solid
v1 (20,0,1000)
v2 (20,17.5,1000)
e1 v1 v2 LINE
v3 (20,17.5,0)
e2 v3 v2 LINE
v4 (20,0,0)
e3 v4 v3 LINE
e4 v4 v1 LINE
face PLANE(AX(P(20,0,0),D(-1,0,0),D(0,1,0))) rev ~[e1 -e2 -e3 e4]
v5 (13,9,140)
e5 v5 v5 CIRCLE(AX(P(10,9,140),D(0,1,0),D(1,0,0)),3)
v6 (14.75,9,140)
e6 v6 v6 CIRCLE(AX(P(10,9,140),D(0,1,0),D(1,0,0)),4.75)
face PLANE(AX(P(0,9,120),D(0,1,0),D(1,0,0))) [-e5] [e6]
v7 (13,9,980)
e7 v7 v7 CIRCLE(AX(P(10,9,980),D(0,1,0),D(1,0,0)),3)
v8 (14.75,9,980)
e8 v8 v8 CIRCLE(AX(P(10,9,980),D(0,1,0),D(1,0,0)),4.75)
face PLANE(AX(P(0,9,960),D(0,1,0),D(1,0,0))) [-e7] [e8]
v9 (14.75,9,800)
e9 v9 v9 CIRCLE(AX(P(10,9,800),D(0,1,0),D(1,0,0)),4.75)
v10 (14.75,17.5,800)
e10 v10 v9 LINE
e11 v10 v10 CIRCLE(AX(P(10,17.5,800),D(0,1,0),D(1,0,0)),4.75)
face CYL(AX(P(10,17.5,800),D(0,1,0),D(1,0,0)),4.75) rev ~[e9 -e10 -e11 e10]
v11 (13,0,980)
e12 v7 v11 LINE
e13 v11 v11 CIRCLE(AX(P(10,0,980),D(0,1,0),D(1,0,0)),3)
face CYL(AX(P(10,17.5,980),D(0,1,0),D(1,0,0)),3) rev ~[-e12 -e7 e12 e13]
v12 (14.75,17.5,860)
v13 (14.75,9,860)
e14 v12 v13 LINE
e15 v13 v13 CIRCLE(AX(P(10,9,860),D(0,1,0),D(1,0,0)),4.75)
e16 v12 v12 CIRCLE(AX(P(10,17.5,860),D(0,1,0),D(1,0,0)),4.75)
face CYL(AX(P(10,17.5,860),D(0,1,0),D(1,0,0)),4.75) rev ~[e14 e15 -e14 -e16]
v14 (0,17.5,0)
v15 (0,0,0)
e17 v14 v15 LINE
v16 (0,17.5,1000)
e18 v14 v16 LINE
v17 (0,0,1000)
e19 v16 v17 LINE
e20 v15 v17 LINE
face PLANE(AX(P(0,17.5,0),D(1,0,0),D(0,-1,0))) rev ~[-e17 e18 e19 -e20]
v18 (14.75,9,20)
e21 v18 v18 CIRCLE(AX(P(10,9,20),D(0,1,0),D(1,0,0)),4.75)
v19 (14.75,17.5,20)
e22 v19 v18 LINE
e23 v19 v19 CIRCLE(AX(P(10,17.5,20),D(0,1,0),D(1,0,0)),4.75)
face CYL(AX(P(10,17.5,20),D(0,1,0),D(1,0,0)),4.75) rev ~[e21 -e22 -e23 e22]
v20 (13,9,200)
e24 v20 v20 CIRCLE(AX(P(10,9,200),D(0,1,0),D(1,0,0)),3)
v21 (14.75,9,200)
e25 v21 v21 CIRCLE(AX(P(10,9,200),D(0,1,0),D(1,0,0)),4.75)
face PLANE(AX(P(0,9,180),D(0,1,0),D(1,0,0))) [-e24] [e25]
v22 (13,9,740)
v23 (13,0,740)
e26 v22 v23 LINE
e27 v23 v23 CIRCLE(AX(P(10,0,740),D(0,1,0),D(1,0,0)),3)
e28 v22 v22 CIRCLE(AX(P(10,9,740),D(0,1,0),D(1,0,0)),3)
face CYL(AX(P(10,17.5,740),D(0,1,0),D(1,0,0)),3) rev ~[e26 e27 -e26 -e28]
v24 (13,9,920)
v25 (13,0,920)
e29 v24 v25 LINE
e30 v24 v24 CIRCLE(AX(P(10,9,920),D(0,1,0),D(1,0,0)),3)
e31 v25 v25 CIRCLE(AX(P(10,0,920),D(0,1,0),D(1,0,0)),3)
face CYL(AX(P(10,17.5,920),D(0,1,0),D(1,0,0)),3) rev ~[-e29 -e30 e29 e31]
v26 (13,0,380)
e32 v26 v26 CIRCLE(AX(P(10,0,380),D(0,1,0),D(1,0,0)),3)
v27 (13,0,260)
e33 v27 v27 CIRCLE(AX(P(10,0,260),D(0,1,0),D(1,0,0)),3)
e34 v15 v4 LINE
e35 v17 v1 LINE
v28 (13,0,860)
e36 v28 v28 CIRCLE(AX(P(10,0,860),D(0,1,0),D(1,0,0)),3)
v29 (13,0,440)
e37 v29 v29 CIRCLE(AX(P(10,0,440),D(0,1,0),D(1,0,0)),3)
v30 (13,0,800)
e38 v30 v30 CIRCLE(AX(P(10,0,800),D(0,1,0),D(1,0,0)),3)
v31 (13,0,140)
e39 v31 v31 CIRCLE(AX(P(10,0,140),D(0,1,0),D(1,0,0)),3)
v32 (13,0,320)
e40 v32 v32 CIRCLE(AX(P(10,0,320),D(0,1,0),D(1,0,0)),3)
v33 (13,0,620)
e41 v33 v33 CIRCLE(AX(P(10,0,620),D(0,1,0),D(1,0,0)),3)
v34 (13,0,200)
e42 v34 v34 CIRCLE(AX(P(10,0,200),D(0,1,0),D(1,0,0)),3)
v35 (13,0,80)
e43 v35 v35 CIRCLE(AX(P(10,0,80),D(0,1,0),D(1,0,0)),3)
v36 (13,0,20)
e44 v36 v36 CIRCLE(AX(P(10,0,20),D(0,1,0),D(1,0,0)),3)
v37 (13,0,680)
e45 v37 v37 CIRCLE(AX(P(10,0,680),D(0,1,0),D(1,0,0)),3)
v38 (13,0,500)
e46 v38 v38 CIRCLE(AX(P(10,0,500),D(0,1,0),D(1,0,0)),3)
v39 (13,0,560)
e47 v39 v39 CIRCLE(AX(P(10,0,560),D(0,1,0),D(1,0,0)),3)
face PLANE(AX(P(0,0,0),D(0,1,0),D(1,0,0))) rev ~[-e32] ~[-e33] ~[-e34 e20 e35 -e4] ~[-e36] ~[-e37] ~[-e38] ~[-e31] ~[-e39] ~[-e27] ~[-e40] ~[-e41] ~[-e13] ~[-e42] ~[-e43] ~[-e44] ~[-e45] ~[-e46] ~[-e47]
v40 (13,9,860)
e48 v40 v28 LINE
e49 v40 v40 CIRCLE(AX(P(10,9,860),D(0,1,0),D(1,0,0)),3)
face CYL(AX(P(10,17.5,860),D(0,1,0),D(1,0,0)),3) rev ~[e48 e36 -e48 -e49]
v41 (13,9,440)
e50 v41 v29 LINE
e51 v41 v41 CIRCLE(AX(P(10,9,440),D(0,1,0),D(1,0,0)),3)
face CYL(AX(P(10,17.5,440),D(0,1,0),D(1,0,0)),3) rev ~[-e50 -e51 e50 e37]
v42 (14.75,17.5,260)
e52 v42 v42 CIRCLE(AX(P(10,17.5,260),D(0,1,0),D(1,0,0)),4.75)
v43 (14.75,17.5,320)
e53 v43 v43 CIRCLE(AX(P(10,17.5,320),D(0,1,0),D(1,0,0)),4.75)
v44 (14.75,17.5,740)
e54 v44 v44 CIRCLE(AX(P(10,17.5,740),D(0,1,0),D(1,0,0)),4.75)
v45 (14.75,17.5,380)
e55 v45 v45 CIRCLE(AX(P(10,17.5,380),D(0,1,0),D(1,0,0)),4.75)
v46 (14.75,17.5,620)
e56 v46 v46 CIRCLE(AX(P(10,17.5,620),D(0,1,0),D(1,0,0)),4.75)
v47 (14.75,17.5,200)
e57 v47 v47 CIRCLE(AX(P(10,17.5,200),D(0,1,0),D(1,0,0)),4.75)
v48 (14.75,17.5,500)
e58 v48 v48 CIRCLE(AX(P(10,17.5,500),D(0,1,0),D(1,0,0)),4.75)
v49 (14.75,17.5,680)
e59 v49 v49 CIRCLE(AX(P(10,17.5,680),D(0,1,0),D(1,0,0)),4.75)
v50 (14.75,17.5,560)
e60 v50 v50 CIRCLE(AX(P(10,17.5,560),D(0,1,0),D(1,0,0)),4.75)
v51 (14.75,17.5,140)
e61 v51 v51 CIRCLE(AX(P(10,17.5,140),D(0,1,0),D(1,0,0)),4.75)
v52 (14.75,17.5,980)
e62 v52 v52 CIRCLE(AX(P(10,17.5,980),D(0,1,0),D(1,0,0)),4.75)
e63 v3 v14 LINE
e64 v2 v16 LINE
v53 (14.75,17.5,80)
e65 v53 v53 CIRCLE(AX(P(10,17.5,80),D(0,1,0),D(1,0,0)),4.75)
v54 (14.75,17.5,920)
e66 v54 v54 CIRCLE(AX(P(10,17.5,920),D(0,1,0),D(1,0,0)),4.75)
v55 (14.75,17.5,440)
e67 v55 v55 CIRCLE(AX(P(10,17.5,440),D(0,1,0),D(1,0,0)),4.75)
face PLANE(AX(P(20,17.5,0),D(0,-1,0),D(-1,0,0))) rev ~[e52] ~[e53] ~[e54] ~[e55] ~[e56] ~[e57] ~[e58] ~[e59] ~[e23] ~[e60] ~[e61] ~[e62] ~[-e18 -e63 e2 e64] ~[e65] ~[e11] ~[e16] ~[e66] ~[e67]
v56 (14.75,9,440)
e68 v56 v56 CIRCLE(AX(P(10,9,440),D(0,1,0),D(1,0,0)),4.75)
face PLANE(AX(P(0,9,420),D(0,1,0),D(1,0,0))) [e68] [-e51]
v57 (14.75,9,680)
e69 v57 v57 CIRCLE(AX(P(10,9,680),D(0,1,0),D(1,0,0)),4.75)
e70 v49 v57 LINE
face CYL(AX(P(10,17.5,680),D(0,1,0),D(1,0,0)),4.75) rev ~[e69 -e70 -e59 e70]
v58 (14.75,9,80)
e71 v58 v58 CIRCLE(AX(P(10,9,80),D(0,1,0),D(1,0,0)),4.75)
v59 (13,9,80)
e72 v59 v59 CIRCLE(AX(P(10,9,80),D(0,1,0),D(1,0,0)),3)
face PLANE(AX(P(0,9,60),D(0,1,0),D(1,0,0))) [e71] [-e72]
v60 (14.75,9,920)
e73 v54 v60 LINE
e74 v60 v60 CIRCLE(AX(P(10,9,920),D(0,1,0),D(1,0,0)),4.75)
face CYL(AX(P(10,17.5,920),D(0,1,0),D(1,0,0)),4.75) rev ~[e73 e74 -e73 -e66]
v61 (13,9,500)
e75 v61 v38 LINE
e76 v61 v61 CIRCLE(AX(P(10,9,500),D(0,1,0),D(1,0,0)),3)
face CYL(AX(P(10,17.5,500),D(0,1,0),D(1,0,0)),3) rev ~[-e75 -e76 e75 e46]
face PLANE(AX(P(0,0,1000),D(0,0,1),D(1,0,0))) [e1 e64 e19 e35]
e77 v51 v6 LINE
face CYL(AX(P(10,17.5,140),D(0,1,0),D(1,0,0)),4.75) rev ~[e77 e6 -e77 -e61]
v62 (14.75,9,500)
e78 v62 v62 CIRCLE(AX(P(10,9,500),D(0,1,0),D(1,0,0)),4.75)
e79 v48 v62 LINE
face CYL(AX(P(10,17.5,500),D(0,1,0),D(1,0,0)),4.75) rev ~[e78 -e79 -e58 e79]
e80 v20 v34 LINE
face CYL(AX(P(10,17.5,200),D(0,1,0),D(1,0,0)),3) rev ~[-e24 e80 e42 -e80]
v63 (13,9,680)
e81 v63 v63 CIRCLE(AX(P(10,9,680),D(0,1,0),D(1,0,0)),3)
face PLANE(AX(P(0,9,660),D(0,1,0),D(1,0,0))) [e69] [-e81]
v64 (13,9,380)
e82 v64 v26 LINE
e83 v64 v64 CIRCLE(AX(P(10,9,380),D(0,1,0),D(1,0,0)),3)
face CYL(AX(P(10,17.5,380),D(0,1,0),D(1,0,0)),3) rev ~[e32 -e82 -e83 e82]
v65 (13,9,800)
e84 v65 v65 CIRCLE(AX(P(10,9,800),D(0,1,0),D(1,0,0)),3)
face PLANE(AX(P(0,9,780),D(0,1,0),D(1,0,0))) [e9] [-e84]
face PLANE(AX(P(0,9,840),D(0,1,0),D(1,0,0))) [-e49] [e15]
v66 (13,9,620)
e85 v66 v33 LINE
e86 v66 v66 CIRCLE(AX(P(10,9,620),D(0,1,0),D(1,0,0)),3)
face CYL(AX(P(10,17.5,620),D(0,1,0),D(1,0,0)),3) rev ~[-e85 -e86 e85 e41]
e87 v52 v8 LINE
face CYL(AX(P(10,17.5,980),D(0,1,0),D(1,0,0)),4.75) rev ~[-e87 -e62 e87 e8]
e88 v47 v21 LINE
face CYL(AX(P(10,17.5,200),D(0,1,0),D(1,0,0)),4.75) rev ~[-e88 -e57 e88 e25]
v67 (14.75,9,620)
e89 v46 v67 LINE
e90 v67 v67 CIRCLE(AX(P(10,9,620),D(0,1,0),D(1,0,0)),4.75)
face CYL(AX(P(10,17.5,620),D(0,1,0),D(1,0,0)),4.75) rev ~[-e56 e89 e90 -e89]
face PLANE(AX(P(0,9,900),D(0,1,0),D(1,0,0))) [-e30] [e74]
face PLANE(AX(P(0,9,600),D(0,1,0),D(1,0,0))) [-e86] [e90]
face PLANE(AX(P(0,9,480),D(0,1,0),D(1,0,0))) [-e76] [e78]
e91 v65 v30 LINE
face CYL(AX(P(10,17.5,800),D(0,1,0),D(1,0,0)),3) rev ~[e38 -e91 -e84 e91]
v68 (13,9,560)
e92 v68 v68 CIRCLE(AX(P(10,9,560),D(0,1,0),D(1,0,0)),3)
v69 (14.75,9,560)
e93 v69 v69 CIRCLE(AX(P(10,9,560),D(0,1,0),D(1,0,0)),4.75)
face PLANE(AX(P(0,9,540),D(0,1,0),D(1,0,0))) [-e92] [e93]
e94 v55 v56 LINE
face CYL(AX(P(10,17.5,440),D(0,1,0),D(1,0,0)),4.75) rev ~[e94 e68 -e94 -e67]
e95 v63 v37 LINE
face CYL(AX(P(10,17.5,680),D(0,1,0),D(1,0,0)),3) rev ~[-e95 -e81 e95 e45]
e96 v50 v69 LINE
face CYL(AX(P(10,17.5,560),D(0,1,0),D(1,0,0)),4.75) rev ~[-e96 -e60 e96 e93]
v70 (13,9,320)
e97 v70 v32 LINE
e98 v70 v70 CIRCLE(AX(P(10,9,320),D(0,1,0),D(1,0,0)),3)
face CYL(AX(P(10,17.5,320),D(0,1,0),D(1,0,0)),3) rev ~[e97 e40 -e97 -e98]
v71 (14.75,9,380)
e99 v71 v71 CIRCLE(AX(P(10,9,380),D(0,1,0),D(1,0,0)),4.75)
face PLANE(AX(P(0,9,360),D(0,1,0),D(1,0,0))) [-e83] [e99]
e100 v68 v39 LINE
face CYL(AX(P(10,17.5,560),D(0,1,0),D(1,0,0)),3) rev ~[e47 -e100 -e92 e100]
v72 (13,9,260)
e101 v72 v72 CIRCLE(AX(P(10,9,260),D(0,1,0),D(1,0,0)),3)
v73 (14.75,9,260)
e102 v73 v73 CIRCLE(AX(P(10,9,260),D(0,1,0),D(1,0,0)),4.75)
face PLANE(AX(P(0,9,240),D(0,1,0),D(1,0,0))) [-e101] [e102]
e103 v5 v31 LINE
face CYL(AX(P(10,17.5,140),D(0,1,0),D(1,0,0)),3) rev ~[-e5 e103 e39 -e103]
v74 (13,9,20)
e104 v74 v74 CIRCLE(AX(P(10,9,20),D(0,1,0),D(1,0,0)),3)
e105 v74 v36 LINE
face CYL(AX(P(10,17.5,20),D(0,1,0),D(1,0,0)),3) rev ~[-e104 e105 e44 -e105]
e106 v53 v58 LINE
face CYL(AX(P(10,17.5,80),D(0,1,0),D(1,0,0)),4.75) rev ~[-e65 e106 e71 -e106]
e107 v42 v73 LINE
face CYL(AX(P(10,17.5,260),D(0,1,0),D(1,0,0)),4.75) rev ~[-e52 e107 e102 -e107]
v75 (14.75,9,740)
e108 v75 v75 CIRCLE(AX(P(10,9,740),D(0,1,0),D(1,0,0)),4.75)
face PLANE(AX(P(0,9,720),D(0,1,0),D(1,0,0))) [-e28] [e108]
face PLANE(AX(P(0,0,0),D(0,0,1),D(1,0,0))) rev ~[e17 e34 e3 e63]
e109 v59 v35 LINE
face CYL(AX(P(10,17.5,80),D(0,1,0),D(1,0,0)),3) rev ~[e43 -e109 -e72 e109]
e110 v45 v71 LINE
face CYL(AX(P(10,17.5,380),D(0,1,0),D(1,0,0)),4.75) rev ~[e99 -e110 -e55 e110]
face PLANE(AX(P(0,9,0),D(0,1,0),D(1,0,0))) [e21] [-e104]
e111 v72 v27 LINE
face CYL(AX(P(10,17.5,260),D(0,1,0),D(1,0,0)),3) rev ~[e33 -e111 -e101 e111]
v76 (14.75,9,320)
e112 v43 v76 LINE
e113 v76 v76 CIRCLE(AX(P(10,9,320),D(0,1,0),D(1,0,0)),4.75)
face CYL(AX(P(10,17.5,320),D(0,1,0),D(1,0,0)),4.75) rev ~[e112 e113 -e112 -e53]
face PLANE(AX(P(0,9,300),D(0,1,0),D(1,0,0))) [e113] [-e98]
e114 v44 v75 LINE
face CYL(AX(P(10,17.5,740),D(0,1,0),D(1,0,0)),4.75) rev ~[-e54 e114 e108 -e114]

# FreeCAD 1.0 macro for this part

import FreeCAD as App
import Part
import Sketcher

doc = App.newDocument("Part")
body = doc.addObject("PartDesign::Body", "Body")

# Sketch on XY plane
sketch1 = body.newObject("Sketcher::SketchObject", "Sketch")
sketch1.AttachmentSupport = (doc.getObject("XY_Plane"), [""])
sketch1.MapMode = "FlatFace"
sketch1.addGeometry([
    Part.LineSegment(App.Vector(0, 18, 0), App.Vector(0, 0, 0)),
    Part.LineSegment(App.Vector(0, 0, 0), App.Vector(20, 0, 0)),
    Part.LineSegment(App.Vector(20, 0, 0), App.Vector(20, 18, 0)),
    Part.LineSegment(App.Vector(20, 18, 0), App.Vector(0, 18, 0)),
], False)
sketch1.addConstraint([
    Sketcher.Constraint("Coincident", 0, 2, 1, 1),
    Sketcher.Constraint("Coincident", 1, 2, 2, 1),
    Sketcher.Constraint("Coincident", 2, 2, 3, 1),
    Sketcher.Constraint("Coincident", 3, 2, 0, 1),
    Sketcher.Constraint("Vertical", 0),
    Sketcher.Constraint("Horizontal", 1),
    Sketcher.Constraint("Vertical", 2),
    Sketcher.Constraint("Horizontal", 3),
    Sketcher.Constraint("Coincident", 0, 2, -1, 1),
    Sketcher.Constraint("DistanceX", 1, 1, 1, 2, 20.0),
    Sketcher.Constraint("DistanceY", 0, 2, 0, 1, 17.5),
])
pad1 = body.newObject("PartDesign::Pad", "Pad")
pad1.Profile = sketch1
pad1.Length = 1000

# Sketch on XZ plane
sketch2 = body.newObject("Sketcher::SketchObject", "Sketch001")
sketch2.AttachmentSupport = (doc.getObject("XZ_Plane"), [""])
sketch2.MapMode = "FlatFace"
sketch2.AttachmentOffset = App.Placement(App.Vector(0, 0, -17.5), App.Rotation())
sketch2.addGeometry(Part.Circle(App.Vector(10, 20, 0), App.Vector(0, 0, 1), 3), False)
sketch2.addConstraint([
    Sketcher.Constraint("Diameter", 0, 6.0),
    Sketcher.Constraint("DistanceY", -1, 1, 0, 3, 20.0),
    Sketcher.Constraint("DistanceX", -1, 1, 0, 3, 10.0),
])
pocket1 = body.newObject("PartDesign::Pocket", "Pocket")
pocket1.Profile = sketch2
pocket1.Length = 17.5
pocket1.Reversed = True

# Sketch on XZ plane
sketch3 = body.newObject("Sketcher::SketchObject", "Sketch002")
sketch3.AttachmentSupport = (doc.getObject("XZ_Plane"), [""])
sketch3.MapMode = "FlatFace"
sketch3.AttachmentOffset = App.Placement(App.Vector(0, 0, -17.5), App.Rotation())
sketch3.addGeometry(Part.Circle(App.Vector(10, 20, 0), App.Vector(0, 0, 1), 4.8), False)
sketch3.addConstraint([
    Sketcher.Constraint("Diameter", 0, 9.5),
    Sketcher.Constraint("DistanceX", -1, 1, 0, 3, 10.0),
    Sketcher.Constraint("DistanceY", -1, 1, 0, 3, 20.0),
])
pocket2 = body.newObject("PartDesign::Pocket", "Pocket001")
pocket2.Profile = sketch3
pocket2.Length = 8.5
pocket2.Reversed = True
doc.recompute()

linearpattern = body.newObject("PartDesign::LinearPattern", "LinearPattern")
linearpattern.Originals = [pocket1, pocket2]
linearpattern.Direction = (doc.getObject("Z_Axis"), [""])
linearpattern.Mode = "offset"
linearpattern.Offset = 60
linearpattern.Occurrences = 18
body.Tip = linearpattern

doc.recompute()
